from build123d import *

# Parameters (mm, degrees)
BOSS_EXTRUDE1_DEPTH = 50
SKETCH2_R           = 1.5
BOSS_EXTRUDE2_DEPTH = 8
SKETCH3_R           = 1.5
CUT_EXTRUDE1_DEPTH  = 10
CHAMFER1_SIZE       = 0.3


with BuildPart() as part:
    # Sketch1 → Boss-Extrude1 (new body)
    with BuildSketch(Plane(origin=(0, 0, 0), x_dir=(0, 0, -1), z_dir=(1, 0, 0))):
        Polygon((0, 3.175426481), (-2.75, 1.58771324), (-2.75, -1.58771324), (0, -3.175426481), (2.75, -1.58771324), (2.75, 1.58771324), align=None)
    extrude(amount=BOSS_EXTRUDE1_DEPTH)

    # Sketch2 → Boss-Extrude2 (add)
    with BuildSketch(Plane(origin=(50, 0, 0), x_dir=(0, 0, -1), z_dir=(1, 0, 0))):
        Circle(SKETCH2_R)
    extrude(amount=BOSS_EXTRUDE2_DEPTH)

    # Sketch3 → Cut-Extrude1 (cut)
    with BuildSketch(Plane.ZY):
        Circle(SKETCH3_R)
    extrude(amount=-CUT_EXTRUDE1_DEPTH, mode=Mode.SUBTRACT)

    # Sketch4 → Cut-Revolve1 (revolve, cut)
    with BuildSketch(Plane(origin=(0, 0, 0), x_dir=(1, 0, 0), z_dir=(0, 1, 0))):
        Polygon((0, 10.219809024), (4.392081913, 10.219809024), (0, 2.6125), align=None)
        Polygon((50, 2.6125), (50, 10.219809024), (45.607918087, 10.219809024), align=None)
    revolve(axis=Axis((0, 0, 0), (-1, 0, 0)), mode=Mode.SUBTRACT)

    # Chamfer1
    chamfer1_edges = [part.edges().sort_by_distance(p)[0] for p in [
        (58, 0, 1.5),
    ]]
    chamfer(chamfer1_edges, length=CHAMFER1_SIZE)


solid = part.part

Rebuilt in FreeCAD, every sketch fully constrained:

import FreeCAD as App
import Part
import Sketcher

V = App.Vector
Q = App.Units.Quantity


def edges_at(feature, points):
    """Names of the edges that pass closest to the given points."""
    edges = feature.Shape.Edges
    near = lambda p: min(range(len(edges)), key=lambda i: edges[i].distToShape(Part.Vertex(*p))[0])
    return sorted({f"Edge{near(p) + 1}" for p in points})

doc = App.newDocument("Part")
body = doc.addObject("PartDesign::Body", "Body")

# Sketch on YZ plane
sketch1 = body.newObject("Sketcher::SketchObject", "Sketch")
sketch1.AttachmentSupport = (doc.getObject("YZ_Plane"), [""])
sketch1.MapMode = "FlatFace"
sketch1.addGeometry([
    Part.LineSegment(V(3.2, 0, 0), V(1.6, 2.8, 0)),  # 0
    Part.LineSegment(V(1.6, 2.8, 0), V(-1.6, 2.8, 0)),  # 1
    Part.LineSegment(V(-1.6, 2.8, 0), V(-3.2, 0, 0)),  # 2
    Part.LineSegment(V(-3.2, 0, 0), V(-1.6, -2.8, 0)),  # 3
    Part.LineSegment(V(-1.6, -2.8, 0), V(1.6, -2.8, 0)),  # 4
    Part.LineSegment(V(1.6, -2.8, 0), V(3.2, 0, 0)),  # 5
], False)
sketch1.addConstraint([
    Sketcher.Constraint("Coincident", 0, 2, 1, 1),
    Sketcher.Constraint("Coincident", 1, 2, 2, 1),
    Sketcher.Constraint("Coincident", 2, 2, 3, 1),
    Sketcher.Constraint("Coincident", 3, 2, 4, 1),
    Sketcher.Constraint("Coincident", 4, 2, 5, 1),
    Sketcher.Constraint("Coincident", 5, 2, 0, 1),
    Sketcher.Constraint("Horizontal", 1),
    Sketcher.Constraint("Horizontal", 4),
    Sketcher.Constraint("Symmetric", 0, 2, 3, 2, -1, 1),
    Sketcher.Constraint("Symmetric", 2, 2, 5, 2, -1, 1),
    Sketcher.Constraint("PointOnObject", 2, 2, -1),
    Sketcher.Constraint("Parallel", 2, 5),
    Sketcher.Constraint("Vertical", 1, 2, 3, 2),
    Sketcher.Constraint("Angle", 0, Q("120 deg")),
    Sketcher.Constraint("DistanceY", 3, 2, 1, 2, 5.5),
    Sketcher.Constraint("DistanceX", 1, 2, 1, 1, 3.175426),
])
pad1 = body.newObject("PartDesign::Pad", "Pad")
pad1.Profile = sketch1
pad1.Length = 50

# Sketch on YZ plane
sketch2 = body.newObject("Sketcher::SketchObject", "Sketch001")
sketch2.AttachmentSupport = (doc.getObject("YZ_Plane"), [""])
sketch2.MapMode = "FlatFace"
sketch2.AttachmentOffset = App.Placement(V(0, 0, 50), App.Rotation())
sketch2.addGeometry(Part.Circle(V(0, 0, 0), V(0, 0, 1), 1.5), False)
sketch2.addConstraint([
    Sketcher.Constraint("Coincident", 0, 3, -1, 1),
    Sketcher.Constraint("Diameter", 0, 3.0),
])
pad2 = body.newObject("PartDesign::Pad", "Pad001")
pad2.Profile = sketch2
pad2.Length = 8

# Sketch on YZ plane
sketch3 = body.newObject("Sketcher::SketchObject", "Sketch002")
sketch3.AttachmentSupport = (doc.getObject("YZ_Plane"), [""])
sketch3.MapMode = "FlatFace"
sketch3.addGeometry(Part.Circle(V(0, 0, 0), V(0, 0, 1), 1.5), False)
sketch3.addConstraint([
    Sketcher.Constraint("Coincident", 0, 3, -1, 1),
    Sketcher.Constraint("Diameter", 0, 3.0),
])
pocket1 = body.newObject("PartDesign::Pocket", "Pocket")
pocket1.Profile = sketch3
pocket1.Length = 10
pocket1.Reversed = True

# Sketch on XZ plane
sketch4 = body.newObject("Sketcher::SketchObject", "Sketch003")
sketch4.AttachmentSupport = (doc.getObject("XZ_Plane"), [""])
sketch4.MapMode = "FlatFace"
sketch4.addGeometry([
    Part.LineSegment(V(4.4, -10.2, 0), V(0, -10.2, 0)),  # 0
    Part.LineSegment(V(0, -10.2, 0), V(0, -2.6, 0)),  # 1
    Part.LineSegment(V(0, -2.6, 0), V(4.4, -10.2, 0)),  # 2
    Part.LineSegment(V(50, -2.6, 0), V(50, -10.2, 0)),  # 3
    Part.LineSegment(V(50, -10.2, 0), V(45.6, -10.2, 0)),  # 4
    Part.LineSegment(V(45.6, -10.2, 0), V(50, -2.6, 0)),  # 5
], False)
sketch4.addConstraint([
    Sketcher.Constraint("Coincident", 0, 2, 1, 1),
    Sketcher.Constraint("Coincident", 1, 2, 2, 1),
    Sketcher.Constraint("Coincident", 2, 2, 0, 1),
    Sketcher.Constraint("Coincident", 3, 2, 4, 1),
    Sketcher.Constraint("Coincident", 4, 2, 5, 1),
    Sketcher.Constraint("Coincident", 5, 2, 3, 1),
    Sketcher.Constraint("Horizontal", 0),
    Sketcher.Constraint("Vertical", 1),
    Sketcher.Constraint("Vertical", 3),
    Sketcher.Constraint("Horizontal", 4),
    Sketcher.Constraint("PointOnObject", 0, 2, -2),
    Sketcher.Constraint("Horizontal", 2, 2, 3, 2),
    Sketcher.Constraint("Horizontal", 1, 2, 5, 2),
    Sketcher.Constraint("Equal", 0, 4),
    Sketcher.Constraint("Angle", 2, Q("-60 deg")),
    Sketcher.Constraint("DistanceX", -1, 1, 3, 2, 50.0),
    Sketcher.Constraint("DistanceX", 0, 2, 0, 1, 4.392082),
    Sketcher.Constraint("DistanceY", 1, 2, -1, 1, 2.6125),
])
groove = body.newObject("PartDesign::Groove", "Groove")
groove.Profile = sketch4
groove.ReferenceAxis = (sketch4, ["H_Axis"])
groove.Angle = 360
doc.recompute()

chamfer = body.newObject("PartDesign::Chamfer", "Chamfer")
chamfer.Base = (groove, edges_at(groove, [(58, 0, 1.5)]))
chamfer.Size = 0.3

doc.recompute()
